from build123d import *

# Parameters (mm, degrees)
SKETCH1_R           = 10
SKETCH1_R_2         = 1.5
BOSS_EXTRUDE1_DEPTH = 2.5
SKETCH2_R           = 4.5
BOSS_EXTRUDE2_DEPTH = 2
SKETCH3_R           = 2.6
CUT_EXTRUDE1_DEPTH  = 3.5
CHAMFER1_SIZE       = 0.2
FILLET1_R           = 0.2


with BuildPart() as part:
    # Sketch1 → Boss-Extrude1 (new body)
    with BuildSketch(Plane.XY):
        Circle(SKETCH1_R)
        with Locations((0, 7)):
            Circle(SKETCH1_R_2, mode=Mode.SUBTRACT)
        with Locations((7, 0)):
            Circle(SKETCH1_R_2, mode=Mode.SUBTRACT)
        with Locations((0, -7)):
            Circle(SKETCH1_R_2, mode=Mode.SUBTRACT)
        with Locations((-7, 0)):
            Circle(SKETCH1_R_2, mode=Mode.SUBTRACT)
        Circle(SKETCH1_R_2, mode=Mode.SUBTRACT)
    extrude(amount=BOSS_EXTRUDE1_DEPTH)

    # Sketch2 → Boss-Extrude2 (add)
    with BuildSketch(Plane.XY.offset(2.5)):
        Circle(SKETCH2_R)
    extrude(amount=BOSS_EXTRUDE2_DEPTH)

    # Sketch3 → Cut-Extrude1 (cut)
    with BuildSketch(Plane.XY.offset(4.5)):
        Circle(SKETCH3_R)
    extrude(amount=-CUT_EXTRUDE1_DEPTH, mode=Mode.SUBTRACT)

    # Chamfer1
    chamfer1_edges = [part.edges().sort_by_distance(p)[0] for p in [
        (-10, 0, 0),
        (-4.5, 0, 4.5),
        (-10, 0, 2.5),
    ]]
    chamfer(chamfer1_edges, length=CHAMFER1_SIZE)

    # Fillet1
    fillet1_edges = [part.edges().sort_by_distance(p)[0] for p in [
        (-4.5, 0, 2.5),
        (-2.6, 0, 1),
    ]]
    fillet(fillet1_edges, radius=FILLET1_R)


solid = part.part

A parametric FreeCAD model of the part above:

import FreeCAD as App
import Part
import Sketcher

V = App.Vector
Q = App.Units.Quantity


def edges_at(feature, points):
    """Names of the edges that pass closest to the given points."""
    edges = feature.Shape.Edges
    near = lambda p: min(range(len(edges)), key=lambda i: edges[i].distToShape(Part.Vertex(*p))[0])
    return sorted({f"Edge{near(p) + 1}" for p in points})

doc = App.newDocument("Part")
params = doc.addObject("Spreadsheet::Sheet", "Params")
for row, (alias, value) in enumerate([
    ("sketch1_diameter", "20 mm"),
    ("sketch1_diameter2", "3 mm"),
    ("pad1_length", "2.5 mm"),
    ("sketch2_diameter", "9 mm"),
    ("pad2_length", "2 mm"),
    ("sketch3_diameter", "5.2 mm"),
    ("pocket1_length", "3.5 mm"),
    ("chamfer_size", "0.2 mm"),
    ("fillet_radius", "0.2 mm"),
], start=1):
    params.set(f"A{row}", alias)
    params.set(f"B{row}", "=" + value)
    params.setAlias(f"B{row}", alias)

body = doc.addObject("PartDesign::Body", "Body")

sketch1 = body.newObject("Sketcher::SketchObject", "Sketch")
sketch1.AttachmentSupport = (doc.getObject("XY_Plane"), [""])
sketch1.MapMode = "FlatFace"
sketch1.addGeometry([
    Part.Circle(V(0, 0, 0), V(0, 0, 1), 10),
    Part.Circle(V(0, -7, 0), V(0, 0, 1), 1.5),
    Part.Circle(V(-7, 0, 0), V(0, 0, 1), 1.5),
    Part.Circle(V(0, 0, 0), V(0, 0, 1), 1.5),
    Part.Circle(V(7, 0, 0), V(0, 0, 1), 1.5),
    Part.Circle(V(0, 7, 0), V(0, 0, 1), 1.5),
], False)
sketch1.addConstraint([
    Sketcher.Constraint("Coincident", 0, 3, -1, 1),
    Sketcher.Constraint("Coincident", 3, 3, -1, 1),
    Sketcher.Constraint("Equal", 1, 2),
    Sketcher.Constraint("Equal", 2, 3),
    Sketcher.Constraint("Equal", 3, 4),
    Sketcher.Constraint("Equal", 4, 5),
    Sketcher.Constraint("Symmetric", 2, 3, 4, 3, -1, 1),
    Sketcher.Constraint("Symmetric", 1, 3, 5, 3, -1, 1),
    Sketcher.Constraint("PointOnObject", 1, 3, -2),
    Sketcher.Constraint("PointOnObject", 2, 3, -1),
    Sketcher.Constraint("Diameter", 0, Q("20 mm")),
    Sketcher.Constraint("Diameter", 1, Q("3 mm")),
    Sketcher.Constraint("DistanceY", 1, 3, -1, 1, Q("7 mm")),
    Sketcher.Constraint("DistanceX", 2, 3, -1, 1, Q("7 mm")),
])
sketch1.setExpression("Constraints[10]", "Params.sketch1_diameter")
sketch1.setExpression("Constraints[11]", "Params.sketch1_diameter2")
pad1 = body.newObject("PartDesign::Pad", "Pad")
pad1.Profile = sketch1
pad1.setExpression("Length", "Params.pad1_length")

sketch2 = body.newObject("Sketcher::SketchObject", "Sketch001")
sketch2.AttachmentSupport = (doc.getObject("XY_Plane"), [""])
sketch2.MapMode = "FlatFace"
sketch2.AttachmentOffset = App.Placement(V(0, 0, 2.5), App.Rotation())
sketch2.addGeometry(Part.Circle(V(0, 0, 0), V(0, 0, 1), 4.5), False)
sketch2.addConstraint([
    Sketcher.Constraint("Coincident", 0, 3, -1, 1),
    Sketcher.Constraint("Diameter", 0, Q("9 mm")),
])
sketch2.setExpression("Constraints[1]", "Params.sketch2_diameter")
pad2 = body.newObject("PartDesign::Pad", "Pad001")
pad2.Profile = sketch2
pad2.setExpression("Length", "Params.pad2_length")

sketch3 = body.newObject("Sketcher::SketchObject", "Sketch002")
sketch3.AttachmentSupport = (doc.getObject("XY_Plane"), [""])
sketch3.MapMode = "FlatFace"
sketch3.AttachmentOffset = App.Placement(V(0, 0, 4.5), App.Rotation())
sketch3.addGeometry(Part.Circle(V(0, 0, 0), V(0, 0, 1), 2.6), False)
sketch3.addConstraint([
    Sketcher.Constraint("Coincident", 0, 3, -1, 1),
    Sketcher.Constraint("Diameter", 0, Q("5.2 mm")),
])
sketch3.setExpression("Constraints[1]", "Params.sketch3_diameter")
pocket1 = body.newObject("PartDesign::Pocket", "Pocket")
pocket1.Profile = sketch3
pocket1.setExpression("Length", "Params.pocket1_length")
doc.recompute()

chamfer = body.newObject("PartDesign::Chamfer", "Chamfer")
chamfer.Base = (pocket1, edges_at(pocket1, [(-10, 0, 0), (-4.5, 0, 4.5), (-10, 0, 2.5)]))
chamfer.setExpression("Size", "Params.chamfer_size")
doc.recompute()

fillet = body.newObject("PartDesign::Fillet", "Fillet")
fillet.Base = (chamfer, edges_at(chamfer, [(-4.5, 0, 2.5), (-2.6, 0, 1)]))
fillet.setExpression("Radius", "Params.fillet_radius")

doc.recompute()
